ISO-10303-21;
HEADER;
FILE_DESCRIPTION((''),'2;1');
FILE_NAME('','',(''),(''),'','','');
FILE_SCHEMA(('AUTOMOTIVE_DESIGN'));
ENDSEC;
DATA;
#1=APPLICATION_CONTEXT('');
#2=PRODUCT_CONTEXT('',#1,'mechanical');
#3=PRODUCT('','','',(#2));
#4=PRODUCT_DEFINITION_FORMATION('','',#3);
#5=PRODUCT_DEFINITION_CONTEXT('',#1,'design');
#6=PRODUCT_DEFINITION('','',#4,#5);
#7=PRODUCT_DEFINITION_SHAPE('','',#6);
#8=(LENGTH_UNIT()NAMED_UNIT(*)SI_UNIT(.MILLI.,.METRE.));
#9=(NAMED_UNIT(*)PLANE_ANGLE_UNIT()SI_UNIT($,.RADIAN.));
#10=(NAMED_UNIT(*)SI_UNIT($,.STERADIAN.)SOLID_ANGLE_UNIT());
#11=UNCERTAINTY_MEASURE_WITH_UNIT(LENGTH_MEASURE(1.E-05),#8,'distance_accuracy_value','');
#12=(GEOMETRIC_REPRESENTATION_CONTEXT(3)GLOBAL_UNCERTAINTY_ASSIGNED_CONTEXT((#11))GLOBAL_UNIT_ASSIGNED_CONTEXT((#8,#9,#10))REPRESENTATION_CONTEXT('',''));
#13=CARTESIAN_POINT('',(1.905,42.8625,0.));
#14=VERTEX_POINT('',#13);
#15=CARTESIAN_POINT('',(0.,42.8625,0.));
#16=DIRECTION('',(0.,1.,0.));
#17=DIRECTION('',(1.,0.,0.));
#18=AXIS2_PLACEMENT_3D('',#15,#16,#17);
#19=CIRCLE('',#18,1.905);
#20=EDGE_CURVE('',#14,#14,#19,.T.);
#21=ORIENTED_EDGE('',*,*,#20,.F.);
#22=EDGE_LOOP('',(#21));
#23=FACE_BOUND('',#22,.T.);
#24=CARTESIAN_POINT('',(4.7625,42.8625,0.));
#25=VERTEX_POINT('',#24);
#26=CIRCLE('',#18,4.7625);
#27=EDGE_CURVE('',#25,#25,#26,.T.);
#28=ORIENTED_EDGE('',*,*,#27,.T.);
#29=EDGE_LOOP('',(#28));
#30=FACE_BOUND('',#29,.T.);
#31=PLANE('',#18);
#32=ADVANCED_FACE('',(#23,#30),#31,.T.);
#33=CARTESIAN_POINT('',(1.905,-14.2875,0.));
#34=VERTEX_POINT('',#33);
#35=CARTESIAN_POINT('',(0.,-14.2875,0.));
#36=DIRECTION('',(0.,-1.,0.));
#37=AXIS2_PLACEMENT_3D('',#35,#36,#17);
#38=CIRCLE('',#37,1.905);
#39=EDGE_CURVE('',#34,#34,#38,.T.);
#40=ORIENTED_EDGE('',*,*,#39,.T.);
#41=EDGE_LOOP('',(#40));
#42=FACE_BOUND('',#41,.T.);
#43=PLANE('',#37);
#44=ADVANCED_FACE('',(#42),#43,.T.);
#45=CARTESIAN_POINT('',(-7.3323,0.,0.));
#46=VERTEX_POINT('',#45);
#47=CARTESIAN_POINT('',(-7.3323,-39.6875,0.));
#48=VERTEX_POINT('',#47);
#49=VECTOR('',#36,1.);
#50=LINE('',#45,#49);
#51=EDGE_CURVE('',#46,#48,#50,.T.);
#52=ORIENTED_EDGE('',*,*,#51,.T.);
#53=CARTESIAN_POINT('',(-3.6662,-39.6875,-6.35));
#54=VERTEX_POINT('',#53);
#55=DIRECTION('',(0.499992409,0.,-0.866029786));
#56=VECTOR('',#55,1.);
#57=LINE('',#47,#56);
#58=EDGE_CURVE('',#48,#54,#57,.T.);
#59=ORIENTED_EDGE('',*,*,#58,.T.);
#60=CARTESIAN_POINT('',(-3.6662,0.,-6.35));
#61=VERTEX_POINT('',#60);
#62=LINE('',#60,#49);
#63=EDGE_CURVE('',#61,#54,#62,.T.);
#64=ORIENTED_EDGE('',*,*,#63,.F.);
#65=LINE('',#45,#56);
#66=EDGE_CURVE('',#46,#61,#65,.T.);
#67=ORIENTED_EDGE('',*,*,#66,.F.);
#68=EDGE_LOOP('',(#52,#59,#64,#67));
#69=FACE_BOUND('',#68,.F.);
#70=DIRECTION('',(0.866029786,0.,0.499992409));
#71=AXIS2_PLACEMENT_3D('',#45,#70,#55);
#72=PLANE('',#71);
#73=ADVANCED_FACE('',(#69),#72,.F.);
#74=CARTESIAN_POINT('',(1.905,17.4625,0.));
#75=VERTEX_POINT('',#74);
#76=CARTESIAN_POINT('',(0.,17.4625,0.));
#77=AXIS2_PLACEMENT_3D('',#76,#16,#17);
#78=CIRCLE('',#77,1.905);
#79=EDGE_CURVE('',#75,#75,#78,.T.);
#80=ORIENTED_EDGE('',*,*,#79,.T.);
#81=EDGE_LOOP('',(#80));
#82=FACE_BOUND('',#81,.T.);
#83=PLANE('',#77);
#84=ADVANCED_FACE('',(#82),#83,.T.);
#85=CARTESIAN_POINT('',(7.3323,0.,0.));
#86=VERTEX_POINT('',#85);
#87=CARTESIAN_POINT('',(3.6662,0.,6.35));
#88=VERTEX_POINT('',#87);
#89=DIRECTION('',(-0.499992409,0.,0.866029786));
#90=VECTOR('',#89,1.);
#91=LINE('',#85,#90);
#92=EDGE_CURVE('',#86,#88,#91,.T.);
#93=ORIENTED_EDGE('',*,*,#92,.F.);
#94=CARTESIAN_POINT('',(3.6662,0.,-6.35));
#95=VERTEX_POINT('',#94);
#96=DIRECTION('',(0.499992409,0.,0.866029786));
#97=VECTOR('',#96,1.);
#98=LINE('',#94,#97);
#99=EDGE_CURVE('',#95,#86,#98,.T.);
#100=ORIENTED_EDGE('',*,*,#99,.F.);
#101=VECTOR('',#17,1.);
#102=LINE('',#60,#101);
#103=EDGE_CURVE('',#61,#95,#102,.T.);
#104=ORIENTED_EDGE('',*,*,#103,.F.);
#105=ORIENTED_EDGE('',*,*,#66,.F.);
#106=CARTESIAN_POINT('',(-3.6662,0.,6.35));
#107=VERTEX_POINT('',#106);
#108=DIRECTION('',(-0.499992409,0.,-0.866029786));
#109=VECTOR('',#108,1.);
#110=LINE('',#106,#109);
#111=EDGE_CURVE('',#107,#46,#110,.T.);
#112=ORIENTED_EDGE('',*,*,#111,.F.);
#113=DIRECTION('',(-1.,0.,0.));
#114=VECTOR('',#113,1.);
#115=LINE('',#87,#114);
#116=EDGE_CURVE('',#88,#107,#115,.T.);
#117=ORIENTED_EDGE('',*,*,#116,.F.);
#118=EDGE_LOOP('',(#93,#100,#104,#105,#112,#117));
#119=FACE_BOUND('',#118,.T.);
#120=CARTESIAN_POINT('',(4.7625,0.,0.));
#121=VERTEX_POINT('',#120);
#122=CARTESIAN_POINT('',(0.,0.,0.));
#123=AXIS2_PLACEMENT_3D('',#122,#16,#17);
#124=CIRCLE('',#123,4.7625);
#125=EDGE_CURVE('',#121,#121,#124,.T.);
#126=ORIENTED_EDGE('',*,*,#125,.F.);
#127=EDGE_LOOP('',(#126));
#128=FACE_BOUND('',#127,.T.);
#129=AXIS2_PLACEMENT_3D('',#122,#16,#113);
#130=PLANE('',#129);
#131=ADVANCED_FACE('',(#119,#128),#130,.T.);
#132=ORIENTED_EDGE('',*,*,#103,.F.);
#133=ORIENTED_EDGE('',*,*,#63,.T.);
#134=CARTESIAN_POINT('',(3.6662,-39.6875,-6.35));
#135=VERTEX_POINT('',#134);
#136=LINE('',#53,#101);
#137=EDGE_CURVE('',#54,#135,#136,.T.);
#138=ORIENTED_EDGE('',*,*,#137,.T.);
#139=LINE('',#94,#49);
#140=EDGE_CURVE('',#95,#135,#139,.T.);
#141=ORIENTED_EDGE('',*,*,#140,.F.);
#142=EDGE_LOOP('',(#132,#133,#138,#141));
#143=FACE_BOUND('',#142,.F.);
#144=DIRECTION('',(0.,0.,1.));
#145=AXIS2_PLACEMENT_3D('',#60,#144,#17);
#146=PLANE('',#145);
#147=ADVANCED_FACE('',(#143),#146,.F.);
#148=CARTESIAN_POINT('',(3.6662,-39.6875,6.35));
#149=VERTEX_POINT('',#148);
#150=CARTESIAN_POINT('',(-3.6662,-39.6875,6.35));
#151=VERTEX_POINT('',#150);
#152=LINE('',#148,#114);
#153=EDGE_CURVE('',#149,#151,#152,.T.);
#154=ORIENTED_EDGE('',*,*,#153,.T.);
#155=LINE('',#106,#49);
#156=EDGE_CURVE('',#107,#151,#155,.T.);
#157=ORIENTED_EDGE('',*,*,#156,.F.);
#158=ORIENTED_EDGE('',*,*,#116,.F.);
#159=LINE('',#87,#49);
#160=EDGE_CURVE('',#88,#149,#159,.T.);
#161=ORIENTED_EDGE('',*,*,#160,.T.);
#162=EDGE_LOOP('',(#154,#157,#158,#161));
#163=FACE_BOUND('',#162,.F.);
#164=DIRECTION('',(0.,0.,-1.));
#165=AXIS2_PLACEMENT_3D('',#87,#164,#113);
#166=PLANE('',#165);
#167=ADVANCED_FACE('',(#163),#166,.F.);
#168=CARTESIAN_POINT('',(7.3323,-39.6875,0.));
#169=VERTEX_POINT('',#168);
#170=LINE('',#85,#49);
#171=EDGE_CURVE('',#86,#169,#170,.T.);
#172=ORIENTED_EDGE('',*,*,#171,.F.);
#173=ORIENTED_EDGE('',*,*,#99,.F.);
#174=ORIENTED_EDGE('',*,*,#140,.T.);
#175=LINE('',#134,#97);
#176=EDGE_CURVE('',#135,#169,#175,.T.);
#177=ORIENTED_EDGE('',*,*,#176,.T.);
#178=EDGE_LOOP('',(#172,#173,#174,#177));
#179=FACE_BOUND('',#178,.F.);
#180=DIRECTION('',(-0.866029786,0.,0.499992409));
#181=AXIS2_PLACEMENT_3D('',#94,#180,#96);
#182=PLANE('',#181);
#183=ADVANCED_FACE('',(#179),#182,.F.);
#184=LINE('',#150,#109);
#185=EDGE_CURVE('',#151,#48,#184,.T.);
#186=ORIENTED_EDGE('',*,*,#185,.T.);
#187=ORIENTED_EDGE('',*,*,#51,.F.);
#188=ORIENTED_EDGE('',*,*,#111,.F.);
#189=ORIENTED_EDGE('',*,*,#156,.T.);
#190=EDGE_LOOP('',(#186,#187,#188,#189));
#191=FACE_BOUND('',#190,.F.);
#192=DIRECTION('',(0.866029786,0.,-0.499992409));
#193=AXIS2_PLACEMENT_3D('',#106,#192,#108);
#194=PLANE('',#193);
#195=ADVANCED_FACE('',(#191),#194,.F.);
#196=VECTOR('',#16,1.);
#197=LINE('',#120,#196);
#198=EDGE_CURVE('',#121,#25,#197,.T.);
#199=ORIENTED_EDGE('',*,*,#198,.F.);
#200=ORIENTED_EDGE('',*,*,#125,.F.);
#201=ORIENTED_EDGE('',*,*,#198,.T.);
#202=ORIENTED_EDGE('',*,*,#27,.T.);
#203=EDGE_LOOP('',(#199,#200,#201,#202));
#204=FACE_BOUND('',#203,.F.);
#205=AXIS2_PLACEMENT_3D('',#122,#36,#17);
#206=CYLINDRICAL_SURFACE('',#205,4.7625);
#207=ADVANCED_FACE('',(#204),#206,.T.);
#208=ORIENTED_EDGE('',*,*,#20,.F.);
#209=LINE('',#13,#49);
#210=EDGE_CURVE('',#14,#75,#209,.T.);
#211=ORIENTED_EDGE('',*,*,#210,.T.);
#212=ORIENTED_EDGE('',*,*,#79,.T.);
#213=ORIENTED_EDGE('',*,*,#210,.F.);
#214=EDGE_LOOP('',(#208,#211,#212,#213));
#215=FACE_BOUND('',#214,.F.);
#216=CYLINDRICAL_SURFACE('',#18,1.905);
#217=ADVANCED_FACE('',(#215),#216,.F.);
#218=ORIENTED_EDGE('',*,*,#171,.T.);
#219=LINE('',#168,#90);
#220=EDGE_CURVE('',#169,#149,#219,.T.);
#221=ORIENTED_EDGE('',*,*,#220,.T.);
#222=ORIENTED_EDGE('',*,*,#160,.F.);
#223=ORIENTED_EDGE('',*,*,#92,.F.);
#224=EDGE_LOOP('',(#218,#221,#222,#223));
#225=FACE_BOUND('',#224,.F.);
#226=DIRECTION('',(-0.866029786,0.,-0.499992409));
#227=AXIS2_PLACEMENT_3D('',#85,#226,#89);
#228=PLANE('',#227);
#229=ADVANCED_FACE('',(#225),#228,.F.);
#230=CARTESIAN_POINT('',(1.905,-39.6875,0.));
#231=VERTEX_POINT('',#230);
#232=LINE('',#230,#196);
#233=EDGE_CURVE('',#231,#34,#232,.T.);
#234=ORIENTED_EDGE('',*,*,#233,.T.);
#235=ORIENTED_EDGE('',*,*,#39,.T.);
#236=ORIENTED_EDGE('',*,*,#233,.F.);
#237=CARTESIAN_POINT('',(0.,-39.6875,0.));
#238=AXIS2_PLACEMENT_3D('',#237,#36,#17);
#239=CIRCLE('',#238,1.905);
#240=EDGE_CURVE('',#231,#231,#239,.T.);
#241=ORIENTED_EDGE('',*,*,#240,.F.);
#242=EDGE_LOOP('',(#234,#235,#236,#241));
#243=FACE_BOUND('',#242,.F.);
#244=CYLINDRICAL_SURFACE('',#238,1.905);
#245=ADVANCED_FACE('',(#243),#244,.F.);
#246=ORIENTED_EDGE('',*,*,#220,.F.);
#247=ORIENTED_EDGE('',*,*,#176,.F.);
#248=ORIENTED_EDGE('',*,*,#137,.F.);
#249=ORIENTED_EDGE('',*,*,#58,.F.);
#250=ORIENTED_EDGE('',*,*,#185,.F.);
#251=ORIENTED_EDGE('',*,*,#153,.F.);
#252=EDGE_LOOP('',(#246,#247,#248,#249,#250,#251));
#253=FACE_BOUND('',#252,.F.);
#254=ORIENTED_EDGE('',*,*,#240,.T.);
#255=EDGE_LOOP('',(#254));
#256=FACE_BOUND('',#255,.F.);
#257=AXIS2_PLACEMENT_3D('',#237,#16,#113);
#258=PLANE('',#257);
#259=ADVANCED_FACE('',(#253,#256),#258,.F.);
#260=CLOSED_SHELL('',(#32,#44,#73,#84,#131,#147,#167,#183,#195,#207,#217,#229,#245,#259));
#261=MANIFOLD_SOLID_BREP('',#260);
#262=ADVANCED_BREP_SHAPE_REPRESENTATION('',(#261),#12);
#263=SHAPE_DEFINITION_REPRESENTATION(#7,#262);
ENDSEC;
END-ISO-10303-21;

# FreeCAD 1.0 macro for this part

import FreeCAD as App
import Part
import Sketcher
Q = App.Units.Quantity

doc = App.newDocument("Part")
params = doc.addObject("Spreadsheet::Sheet", "Params")
for row, (alias, value) in enumerate([
    ("pad1_length", "1.5625 in"),
    ("sketch2_diameter", "0.375 in"),
    ("pad2_length", "1.6875 in"),
    ("sketch3_diameter", "0.15 in"),
    ("pocket1_length", "1 in"),
    ("sketch4_diameter", "0.15 in"),
    ("pocket2_length", "1 in"),
], start=1):
    params.set(f"A{row}", alias)
    params.set(f"B{row}", "=" + value)
    params.setAlias(f"B{row}", alias)

body = doc.addObject("PartDesign::Body", "Body")

# Sketch on XZ plane
sketch1 = body.newObject("Sketcher::SketchObject", "Sketch")
sketch1.AttachmentSupport = (doc.getObject("XZ_Plane"), [""])
sketch1.MapMode = "FlatFace"
sketch1.addGeometry([
    Part.LineSegment(App.Vector(3.6662, -6.35, 0), App.Vector(-3.6662, -6.35, 0)),  # 0
    Part.LineSegment(App.Vector(-3.6662, -6.35, 0), App.Vector(-7.3323, 0, 0)),  # 1
    Part.LineSegment(App.Vector(-7.3323, 0, 0), App.Vector(-3.6662, 6.35, 0)),  # 2
    Part.LineSegment(App.Vector(-3.6662, 6.35, 0), App.Vector(3.6662, 6.35, 0)),  # 3
    Part.LineSegment(App.Vector(3.6662, 6.35, 0), App.Vector(7.3323, 0, 0)),  # 4
    Part.LineSegment(App.Vector(7.3323, 0, 0), App.Vector(3.6662, -6.35, 0)),  # 5
], False)
sketch1.addConstraint([
    Sketcher.Constraint("Coincident", 0, 2, 1, 1),
    Sketcher.Constraint("Coincident", 1, 2, 2, 1),
    Sketcher.Constraint("Coincident", 2, 2, 3, 1),
    Sketcher.Constraint("Coincident", 3, 2, 4, 1),
    Sketcher.Constraint("Coincident", 4, 2, 5, 1),
    Sketcher.Constraint("Coincident", 5, 2, 0, 1),
    Sketcher.Constraint("Horizontal", 0),
    Sketcher.Constraint("Horizontal", 3),
    Sketcher.Constraint("Symmetric", 0, 2, 3, 2, -1, 1),
    Sketcher.Constraint("Symmetric", 1, 2, 4, 2, -1, 1),
    Sketcher.Constraint("PointOnObject", 1, 2, -1),
    Sketcher.Constraint("Parallel", 2, 5),
    Sketcher.Constraint("Vertical", 0, 2, 2, 2),
    Sketcher.Constraint("DistanceY", 0, 2, 2, 2, Q("0.5 in")),
    Sketcher.Constraint("Angle", 1, Q("119.9995 deg")),
    Sketcher.Constraint("DistanceX", 1, 2, 3, 2, Q("0.433 in")),
])
pad1 = body.newObject("PartDesign::Pad", "Pad")
pad1.Profile = sketch1
pad1.setExpression("Length", "Params.pad1_length")

# Sketch on XZ plane
sketch2 = body.newObject("Sketcher::SketchObject", "Sketch001")
sketch2.AttachmentSupport = (doc.getObject("XZ_Plane"), [""])
sketch2.MapMode = "FlatFace"
sketch2.addGeometry(Part.Circle(App.Vector(0, 0, 0), App.Vector(0, 0, 1), 4.7625), False)
sketch2.addConstraint([
    Sketcher.Constraint("Coincident", 0, 3, -1, 1),
    Sketcher.Constraint("Diameter", 0, Q("0.375 in")),
])
sketch2.setExpression("Constraints[1]", "Params.sketch2_diameter")
pad2 = body.newObject("PartDesign::Pad", "Pad001")
pad2.Profile = sketch2
pad2.setExpression("Length", "Params.pad2_length")
pad2.Reversed = True

# Sketch on XZ plane
sketch3 = body.newObject("Sketcher::SketchObject", "Sketch002")
sketch3.AttachmentSupport = (doc.getObject("XZ_Plane"), [""])
sketch3.MapMode = "FlatFace"
sketch3.AttachmentOffset = App.Placement(App.Vector(0, 0, 1.5625 * 25.4), App.Rotation())
sketch3.addGeometry(Part.Circle(App.Vector(0, 0, 0), App.Vector(0, 0, 1), 1.905), False)
sketch3.addConstraint([
    Sketcher.Constraint("Coincident", 0, 3, -1, 1),
    Sketcher.Constraint("Diameter", 0, Q("0.15 in")),
])
sketch3.setExpression("Constraints[1]", "Params.sketch3_diameter")
pocket1 = body.newObject("PartDesign::Pocket", "Pocket")
pocket1.Profile = sketch3
pocket1.setExpression("Length", "Params.pocket1_length")

# Sketch on XZ plane
sketch4 = body.newObject("Sketcher::SketchObject", "Sketch003")
sketch4.AttachmentSupport = (doc.getObject("XZ_Plane"), [""])
sketch4.MapMode = "FlatFace"
sketch4.AttachmentOffset = App.Placement(App.Vector(0, 0, -1.6875 * 25.4), App.Rotation())
sketch4.addGeometry(Part.Circle(App.Vector(0, 0, 0), App.Vector(0, 0, 1), 1.905), False)
sketch4.addConstraint([
    Sketcher.Constraint("Coincident", 0, 3, -1, 1),
    Sketcher.Constraint("Diameter", 0, Q("0.15 in")),
])
sketch4.setExpression("Constraints[1]", "Params.sketch4_diameter")
pocket2 = body.newObject("PartDesign::Pocket", "Pocket001")
pocket2.Profile = sketch4
pocket2.setExpression("Length", "Params.pocket2_length")
pocket2.Reversed = True

doc.recompute()
